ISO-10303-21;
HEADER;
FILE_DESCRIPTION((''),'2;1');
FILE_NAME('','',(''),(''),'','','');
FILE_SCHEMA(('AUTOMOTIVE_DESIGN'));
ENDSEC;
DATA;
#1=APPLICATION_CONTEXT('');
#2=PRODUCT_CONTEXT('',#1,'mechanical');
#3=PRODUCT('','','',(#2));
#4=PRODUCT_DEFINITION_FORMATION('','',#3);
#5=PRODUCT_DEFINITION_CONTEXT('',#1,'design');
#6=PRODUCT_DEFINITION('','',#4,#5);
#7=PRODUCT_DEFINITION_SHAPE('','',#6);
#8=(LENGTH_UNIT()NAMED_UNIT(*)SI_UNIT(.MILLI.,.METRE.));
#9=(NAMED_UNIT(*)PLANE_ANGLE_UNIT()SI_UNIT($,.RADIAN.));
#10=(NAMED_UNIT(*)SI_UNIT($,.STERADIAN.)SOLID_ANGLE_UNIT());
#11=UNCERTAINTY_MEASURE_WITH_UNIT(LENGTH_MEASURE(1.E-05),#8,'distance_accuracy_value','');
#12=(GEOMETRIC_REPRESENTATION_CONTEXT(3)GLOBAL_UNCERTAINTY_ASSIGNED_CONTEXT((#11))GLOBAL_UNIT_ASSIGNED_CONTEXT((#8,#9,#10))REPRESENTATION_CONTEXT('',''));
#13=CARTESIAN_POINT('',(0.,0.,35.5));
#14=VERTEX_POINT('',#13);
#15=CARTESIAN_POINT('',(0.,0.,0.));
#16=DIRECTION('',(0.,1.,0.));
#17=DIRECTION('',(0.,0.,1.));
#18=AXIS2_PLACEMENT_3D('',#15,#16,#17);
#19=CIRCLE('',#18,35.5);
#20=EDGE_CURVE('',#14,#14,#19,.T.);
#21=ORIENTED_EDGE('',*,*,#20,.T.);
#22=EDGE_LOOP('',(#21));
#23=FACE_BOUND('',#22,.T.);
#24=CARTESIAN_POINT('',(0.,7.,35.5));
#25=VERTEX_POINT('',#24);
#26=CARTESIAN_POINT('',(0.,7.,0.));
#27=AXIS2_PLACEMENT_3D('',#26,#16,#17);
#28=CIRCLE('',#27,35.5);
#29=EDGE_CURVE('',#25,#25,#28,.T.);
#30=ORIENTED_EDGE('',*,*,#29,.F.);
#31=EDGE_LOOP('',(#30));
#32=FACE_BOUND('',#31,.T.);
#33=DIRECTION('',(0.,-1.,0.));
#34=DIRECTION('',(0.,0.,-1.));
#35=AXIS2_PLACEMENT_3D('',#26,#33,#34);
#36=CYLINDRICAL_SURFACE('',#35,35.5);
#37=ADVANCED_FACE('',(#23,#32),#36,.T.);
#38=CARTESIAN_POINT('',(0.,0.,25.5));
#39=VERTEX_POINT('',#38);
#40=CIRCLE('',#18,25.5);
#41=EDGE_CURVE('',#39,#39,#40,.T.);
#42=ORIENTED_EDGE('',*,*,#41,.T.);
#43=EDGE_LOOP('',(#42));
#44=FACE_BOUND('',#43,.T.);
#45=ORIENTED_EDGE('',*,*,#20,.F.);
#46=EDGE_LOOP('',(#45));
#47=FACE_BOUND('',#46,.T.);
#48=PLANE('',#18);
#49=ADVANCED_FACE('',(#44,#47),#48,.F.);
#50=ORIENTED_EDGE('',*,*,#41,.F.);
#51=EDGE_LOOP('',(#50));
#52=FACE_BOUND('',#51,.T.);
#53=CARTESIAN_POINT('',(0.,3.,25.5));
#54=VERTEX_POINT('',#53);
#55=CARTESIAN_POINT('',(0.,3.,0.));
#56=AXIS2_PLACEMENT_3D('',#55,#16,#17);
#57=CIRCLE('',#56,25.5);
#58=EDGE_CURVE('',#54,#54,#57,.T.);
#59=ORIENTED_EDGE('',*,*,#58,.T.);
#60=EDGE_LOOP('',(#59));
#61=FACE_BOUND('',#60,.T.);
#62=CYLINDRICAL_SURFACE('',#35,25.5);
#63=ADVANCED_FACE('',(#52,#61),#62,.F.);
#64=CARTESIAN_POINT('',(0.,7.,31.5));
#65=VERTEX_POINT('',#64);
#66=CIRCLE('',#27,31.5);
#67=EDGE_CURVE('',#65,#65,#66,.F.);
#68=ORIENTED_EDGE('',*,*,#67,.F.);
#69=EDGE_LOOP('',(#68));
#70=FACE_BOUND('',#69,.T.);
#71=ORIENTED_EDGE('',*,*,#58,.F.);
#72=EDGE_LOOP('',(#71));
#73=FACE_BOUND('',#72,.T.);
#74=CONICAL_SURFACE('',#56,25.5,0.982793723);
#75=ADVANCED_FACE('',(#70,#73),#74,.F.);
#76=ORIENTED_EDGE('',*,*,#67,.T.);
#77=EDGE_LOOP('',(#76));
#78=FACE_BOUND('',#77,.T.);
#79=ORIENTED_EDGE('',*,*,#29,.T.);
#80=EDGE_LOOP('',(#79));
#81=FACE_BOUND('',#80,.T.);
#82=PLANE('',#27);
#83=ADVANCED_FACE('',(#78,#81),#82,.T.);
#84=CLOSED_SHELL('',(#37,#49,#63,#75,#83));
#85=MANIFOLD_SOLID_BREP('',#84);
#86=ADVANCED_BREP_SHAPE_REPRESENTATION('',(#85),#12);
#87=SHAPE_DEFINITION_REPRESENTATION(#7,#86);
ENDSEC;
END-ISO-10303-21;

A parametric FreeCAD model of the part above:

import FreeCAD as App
import Part
import Sketcher
from FreeCAD import Vector


def edges_at(feature, points):
    """Names of the edges that pass closest to the given points."""
    edges = feature.Shape.Edges
    near = lambda p: min(range(len(edges)), key=lambda i: edges[i].distToShape(Part.Vertex(*p))[0])
    return sorted({f"Edge{near(p) + 1}" for p in points})

doc = App.newDocument("Part")
body = doc.addObject("PartDesign::Body", "Body")

sketch1 = body.newObject("Sketcher::SketchObject", "Sketch")
sketch1.AttachmentSupport = (doc.getObject("XZ_Plane"), [""])
sketch1.MapMode = "FlatFace"
sketch1.addGeometry([
    Part.Circle(Vector(0, 0, 0), Vector(0, 0, 1), 36),
    Part.Circle(Vector(0, 0, 0), Vector(0, 0, 1), 26),
], False)
sketch1.addConstraint([
    Sketcher.Constraint("Coincident", 0, 3, -1, 1),
    Sketcher.Constraint("Coincident", 1, 3, -1, 1),
    Sketcher.Constraint("Diameter", 0, 71.0),
    Sketcher.Constraint("Diameter", 1, 51.0),
])
pad1 = body.newObject("PartDesign::Pad", "Pad")
pad1.Profile = sketch1
pad1.Length = 7
pad1.Reversed = True
doc.recompute()

chamfer = body.newObject("PartDesign::Chamfer", "Chamfer")
chamfer.Base = (pad1, edges_at(pad1, [(0, 7, -25.5)]))
chamfer.ChamferType = "Two distances"
chamfer.Size = 6
chamfer.Size2 = 4
chamfer.FlipDirection = True

doc.recompute()
